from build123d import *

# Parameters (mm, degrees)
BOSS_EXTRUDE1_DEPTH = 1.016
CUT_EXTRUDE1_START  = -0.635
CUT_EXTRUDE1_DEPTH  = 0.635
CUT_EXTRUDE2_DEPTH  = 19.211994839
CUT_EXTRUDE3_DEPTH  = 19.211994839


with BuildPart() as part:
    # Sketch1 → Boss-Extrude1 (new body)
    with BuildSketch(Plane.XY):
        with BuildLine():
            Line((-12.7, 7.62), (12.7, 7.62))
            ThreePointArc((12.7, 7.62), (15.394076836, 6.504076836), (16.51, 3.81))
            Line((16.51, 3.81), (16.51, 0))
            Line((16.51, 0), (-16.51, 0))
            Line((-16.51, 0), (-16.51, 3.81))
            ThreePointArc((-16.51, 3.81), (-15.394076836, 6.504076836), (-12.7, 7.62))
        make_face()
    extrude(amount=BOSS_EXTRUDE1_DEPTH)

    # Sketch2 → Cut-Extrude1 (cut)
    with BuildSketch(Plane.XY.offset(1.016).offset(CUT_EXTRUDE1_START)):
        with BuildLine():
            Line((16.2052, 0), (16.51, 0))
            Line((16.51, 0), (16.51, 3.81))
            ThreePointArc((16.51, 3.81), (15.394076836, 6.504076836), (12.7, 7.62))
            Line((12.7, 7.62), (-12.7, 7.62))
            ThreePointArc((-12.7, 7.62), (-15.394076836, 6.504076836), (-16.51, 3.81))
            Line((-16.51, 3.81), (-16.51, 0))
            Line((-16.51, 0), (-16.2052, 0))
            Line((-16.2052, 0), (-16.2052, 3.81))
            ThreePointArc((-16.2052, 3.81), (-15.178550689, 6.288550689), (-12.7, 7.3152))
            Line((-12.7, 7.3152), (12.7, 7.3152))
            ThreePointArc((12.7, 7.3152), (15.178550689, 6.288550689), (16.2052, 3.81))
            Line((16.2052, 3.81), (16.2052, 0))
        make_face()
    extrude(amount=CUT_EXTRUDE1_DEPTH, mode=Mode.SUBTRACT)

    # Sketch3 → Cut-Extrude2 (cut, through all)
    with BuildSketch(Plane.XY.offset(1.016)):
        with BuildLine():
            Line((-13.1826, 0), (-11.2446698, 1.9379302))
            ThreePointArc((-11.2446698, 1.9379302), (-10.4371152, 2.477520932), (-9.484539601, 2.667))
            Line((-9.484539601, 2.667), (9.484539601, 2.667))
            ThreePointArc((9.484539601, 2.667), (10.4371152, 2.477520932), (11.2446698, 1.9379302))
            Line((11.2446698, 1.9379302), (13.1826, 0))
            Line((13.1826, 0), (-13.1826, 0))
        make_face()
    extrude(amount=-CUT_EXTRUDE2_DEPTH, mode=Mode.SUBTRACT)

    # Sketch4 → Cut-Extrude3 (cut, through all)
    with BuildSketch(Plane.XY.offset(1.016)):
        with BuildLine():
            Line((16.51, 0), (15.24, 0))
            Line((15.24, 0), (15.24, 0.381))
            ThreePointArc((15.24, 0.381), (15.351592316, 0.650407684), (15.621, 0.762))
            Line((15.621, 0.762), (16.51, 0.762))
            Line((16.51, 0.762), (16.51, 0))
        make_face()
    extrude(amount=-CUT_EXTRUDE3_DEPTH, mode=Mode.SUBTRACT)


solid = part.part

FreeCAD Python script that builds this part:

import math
import FreeCAD as App
import Part
import Sketcher
from FreeCAD import Vector
Q = App.Units.Quantity

doc = App.newDocument("Part")
params = doc.addObject("Spreadsheet::Sheet", "Params")
for row, (alias, value) in enumerate([
    ("sketch1_width", "1 in"),
    ("sketch1_radius", "0.15 in"),
    ("sketch1_height", "0.15 in"),
    ("pad1_length", "0.04 in"),
    ("sketch2_width", "1 in"),
    ("sketch2_radius", "0.15 in"),
    ("sketch2_radius2", "0.138 in"),
    ("sketch2_height", "0.15 in"),
    ("pocket1_length", "0.025 in"),
    ("sketch3_radius", "0.098 in"),
    ("sketch3_width", "1.038 in"),
    ("sketch4_radius", "0.015 in"),
    ("sketch4_width", "0.05 in"),
    ("sketch4_height", "0.03 in"),
], start=1):
    params.set(f"A{row}", alias)
    params.set(f"B{row}", "=" + value)
    params.setAlias(f"B{row}", alias)

body = doc.addObject("PartDesign::Body", "Body")

sketch1 = doc.addObject("Sketcher::SketchObject", "Sketch")
body.addObject(sketch1)
sketch1.AttachmentSupport = (doc.XY_Plane, [""])
sketch1.MapMode = "FlatFace"
sketch1.addGeometry(Part.LineSegment(Vector(12.7, 7.62, 0), Vector(-12.7, 7.62, 0)), False)
sketch1.addGeometry(Part.ArcOfCircle(Part.Circle(Vector(-12.7, 3.81, 0), Vector(0, 0, 1), 3.81), math.radians(90), math.radians(180)), False)
sketch1.addGeometry(Part.LineSegment(Vector(-16.51, 3.81, 0), Vector(-16.51, 0, 0)), False)
sketch1.addGeometry(Part.LineSegment(Vector(-16.51, 0, 0), Vector(16.51, 0, 0)), False)
sketch1.addGeometry(Part.LineSegment(Vector(16.51, 0, 0), Vector(16.51, 3.81, 0)), False)
sketch1.addGeometry(Part.ArcOfCircle(Part.Circle(Vector(12.7, 3.81, 0), Vector(0, 0, 1), 3.81), math.radians(0), math.radians(90)), False)
sketch1.addConstraint(Sketcher.Constraint("Tangent", 0, 2, 1, 1))
sketch1.addConstraint(Sketcher.Constraint("Tangent", 1, 2, 2, 1))
sketch1.addConstraint(Sketcher.Constraint("Coincident", 2, 2, 3, 1))
sketch1.addConstraint(Sketcher.Constraint("Coincident", 3, 2, 4, 1))
sketch1.addConstraint(Sketcher.Constraint("Tangent", 4, 2, 5, 1))
sketch1.addConstraint(Sketcher.Constraint("Tangent", 5, 2, 0, 1))
sketch1.addConstraint(Sketcher.Constraint("Horizontal", 0))
sketch1.addConstraint(Sketcher.Constraint("Vertical", 2))
sketch1.addConstraint(Sketcher.Constraint("Horizontal", 3))
sketch1.addConstraint(Sketcher.Constraint("Vertical", 4))
sketch1.addConstraint(Sketcher.Constraint("Equal", 1, 5))
sketch1.addConstraint(Sketcher.Constraint("Symmetric", 2, 2, 3, 2, -1, 1))
sketch1.addConstraint(Sketcher.Constraint("DistanceX", 0, 2, 0, 1, Q("1 in")))
sketch1.addConstraint(Sketcher.Constraint("Radius", 1, Q("0.15 in")))
sketch1.addConstraint(Sketcher.Constraint("DistanceY", 2, 2, 2, 1, Q("0.15 in")))
sketch1.setExpression("Constraints[12]", "Params.sketch1_width")
sketch1.setExpression("Constraints[13]", "Params.sketch1_radius")
sketch1.setExpression("Constraints[14]", "Params.sketch1_height")
pad1 = doc.addObject("PartDesign::Pad", "Pad")
body.addObject(pad1)
pad1.Profile = sketch1
pad1.setExpression("Length", "Params.pad1_length")

sketch2 = doc.addObject("Sketcher::SketchObject", "Sketch001")
body.addObject(sketch2)
sketch2.AttachmentSupport = (doc.XY_Plane, [""])
sketch2.MapMode = "FlatFace"
sketch2.AttachmentOffset = App.Placement(Vector(0, 0, 0.015 * 25.4), App.Rotation())
sketch2.addGeometry(Part.LineSegment(Vector(16.2052, 0, 0), Vector(16.51, 0, 0)), False)
sketch2.addGeometry(Part.LineSegment(Vector(16.51, 0, 0), Vector(16.51, 3.81, 0)), False)
sketch2.addGeometry(Part.ArcOfCircle(Part.Circle(Vector(12.7, 3.81, 0), Vector(0, 0, 1), 3.81), math.radians(0), math.radians(90)), False)
sketch2.addGeometry(Part.LineSegment(Vector(12.7, 7.62, 0), Vector(-12.7, 7.62, 0)), False)
sketch2.addGeometry(Part.ArcOfCircle(Part.Circle(Vector(-12.7, 3.81, 0), Vector(0, 0, 1), 3.81), math.radians(90), math.radians(180)), False)
sketch2.addGeometry(Part.LineSegment(Vector(-16.51, 3.81, 0), Vector(-16.51, 0, 0)), False)
sketch2.addGeometry(Part.LineSegment(Vector(-16.51, 0, 0), Vector(-16.2052, 0, 0)), False)
sketch2.addGeometry(Part.LineSegment(Vector(-16.2052, 0, 0), Vector(-16.2052, 3.81, 0)), False)
sketch2.addGeometry(Part.ArcOfCircle(Part.Circle(Vector(-12.7, 3.81, 0), Vector(0, 0, 1), 3.5052), math.radians(90), math.radians(180)), False)
sketch2.addGeometry(Part.LineSegment(Vector(-12.7, 7.3152, 0), Vector(12.7, 7.3152, 0)), False)
sketch2.addGeometry(Part.ArcOfCircle(Part.Circle(Vector(12.7, 3.81, 0), Vector(0, 0, 1), 3.5052), math.radians(0), math.radians(90)), False)
sketch2.addGeometry(Part.LineSegment(Vector(16.2052, 3.81, 0), Vector(16.2052, 0, 0)), False)
sketch2.addConstraint(Sketcher.Constraint("Coincident", 0, 2, 1, 1))
sketch2.addConstraint(Sketcher.Constraint("Tangent", 1, 2, 2, 1))
sketch2.addConstraint(Sketcher.Constraint("Tangent", 2, 2, 3, 1))
sketch2.addConstraint(Sketcher.Constraint("Tangent", 3, 2, 4, 1))
sketch2.addConstraint(Sketcher.Constraint("Tangent", 4, 2, 5, 1))
sketch2.addConstraint(Sketcher.Constraint("Coincident", 5, 2, 6, 1))
sketch2.addConstraint(Sketcher.Constraint("Coincident", 6, 2, 7, 1))
sketch2.addConstraint(Sketcher.Constraint("Tangent", 7, 2, 8, 2))
sketch2.addConstraint(Sketcher.Constraint("Tangent", 8, 1, 9, 1))
sketch2.addConstraint(Sketcher.Constraint("Tangent", 9, 2, 10, 2))
sketch2.addConstraint(Sketcher.Constraint("Tangent", 10, 1, 11, 1))
sketch2.addConstraint(Sketcher.Constraint("Coincident", 11, 2, 0, 1))
sketch2.addConstraint(Sketcher.Constraint("Horizontal", 0))
sketch2.addConstraint(Sketcher.Constraint("Vertical", 1))
sketch2.addConstraint(Sketcher.Constraint("Horizontal", 3))
sketch2.addConstraint(Sketcher.Constraint("Vertical", 5))
sketch2.addConstraint(Sketcher.Constraint("Horizontal", 6))
sketch2.addConstraint(Sketcher.Constraint("Vertical", 7))
sketch2.addConstraint(Sketcher.Constraint("Horizontal", 9))
sketch2.addConstraint(Sketcher.Constraint("Vertical", 11))
sketch2.addConstraint(Sketcher.Constraint("Coincident", 8, 3, 4, 3))
sketch2.addConstraint(Sketcher.Constraint("Coincident", 10, 3, 2, 3))
sketch2.addConstraint(Sketcher.Constraint("Equal", 2, 4))
sketch2.addConstraint(Sketcher.Constraint("Symmetric", 0, 2, 5, 2, -1, 1))
sketch2.addConstraint(Sketcher.Constraint("PointOnObject", 0, 2, -1))
sketch2.addConstraint(Sketcher.Constraint("DistanceX", 3, 2, 3, 1, Q("1 in")))
sketch2.addConstraint(Sketcher.Constraint("Radius", 2, Q("0.15 in")))
sketch2.addConstraint(Sketcher.Constraint("Radius", 8, Q("0.138 in")))
sketch2.addConstraint(Sketcher.Constraint("DistanceY", 1, 1, 1, 2, Q("0.15 in")))
sketch2.setExpression("Constraints[25]", "Params.sketch2_width")
sketch2.setExpression("Constraints[26]", "Params.sketch2_radius")
sketch2.setExpression("Constraints[27]", "Params.sketch2_radius2")
sketch2.setExpression("Constraints[28]", "Params.sketch2_height")
pocket1 = doc.addObject("PartDesign::Pocket", "Pocket")
body.addObject(pocket1)
pocket1.Profile = sketch2
pocket1.setExpression("Length", "Params.pocket1_length")
pocket1.Reversed = True

sketch3 = doc.addObject("Sketcher::SketchObject", "Sketch002")
body.addObject(sketch3)
sketch3.AttachmentSupport = (doc.XY_Plane, [""])
sketch3.MapMode = "FlatFace"
sketch3.AttachmentOffset = App.Placement(Vector(0, 0, 0.04 * 25.4), App.Rotation())
sketch3.addGeometry(Part.LineSegment(Vector(-11.24467, 1.93793, 0), Vector(-13.1826, 0, 0)), False)
sketch3.addGeometry(Part.LineSegment(Vector(-13.1826, 0, 0), Vector(13.1826, 0, 0)), False)
sketch3.addGeometry(Part.LineSegment(Vector(13.1826, 0, 0), Vector(11.24467, 1.93793, 0)), False)
sketch3.addGeometry(Part.ArcOfCircle(Part.Circle(Vector(9.48454, 0.1778, 0), Vector(0, 0, 1), 2.4892), math.radians(45), math.radians(90)), False)
sketch3.addGeometry(Part.LineSegment(Vector(9.48454, 2.667, 0), Vector(-9.48454, 2.667, 0)), False)
sketch3.addGeometry(Part.ArcOfCircle(Part.Circle(Vector(-9.48454, 0.1778, 0), Vector(0, 0, 1), 2.4892), math.radians(90), math.radians(135)), False)
sketch3.addConstraint(Sketcher.Constraint("Coincident", 0, 2, 1, 1))
sketch3.addConstraint(Sketcher.Constraint("Coincident", 1, 2, 2, 1))
sketch3.addConstraint(Sketcher.Constraint("Tangent", 2, 2, 3, 1))
sketch3.addConstraint(Sketcher.Constraint("Tangent", 3, 2, 4, 1))
sketch3.addConstraint(Sketcher.Constraint("Tangent", 4, 2, 5, 1))
sketch3.addConstraint(Sketcher.Constraint("Tangent", 5, 2, 0, 1))
sketch3.addConstraint(Sketcher.Constraint("Horizontal", 1))
sketch3.addConstraint(Sketcher.Constraint("Horizontal", 4))
sketch3.addConstraint(Sketcher.Constraint("Equal", 3, 5))
sketch3.addConstraint(Sketcher.Constraint("Symmetric", 0, 2, 1, 2, -1, 1))
sketch3.addConstraint(Sketcher.Constraint("Perpendicular", 0, 2))
sketch3.addConstraint(Sketcher.Constraint("Horizontal", 2, 2, 5, 2))
sketch3.addConstraint(Sketcher.Constraint("Radius", 3, Q("0.098 in")))
sketch3.addConstraint(Sketcher.Constraint("DistanceX", 1, 1, 1, 2, Q("1.038 in")))
sketch3.addConstraint(Sketcher.Constraint("DistanceY", -1, 1, 3, 3, Q("0.007 in")))
sketch3.setExpression("Constraints[12]", "Params.sketch3_radius")
sketch3.setExpression("Constraints[13]", "Params.sketch3_width")
pocket2 = doc.addObject("PartDesign::Pocket", "Pocket001")
body.addObject(pocket2)
pocket2.Profile = sketch3
pocket2.Type = "ThroughAll"

sketch4 = doc.addObject("Sketcher::SketchObject", "Sketch003")
body.addObject(sketch4)
sketch4.AttachmentSupport = (doc.XY_Plane, [""])
sketch4.MapMode = "FlatFace"
sketch4.AttachmentOffset = App.Placement(Vector(0, 0, 0.04 * 25.4), App.Rotation())
sketch4.addGeometry(Part.LineSegment(Vector(15.24, 0, 0), Vector(16.51, 0, 0)), False)
sketch4.addGeometry(Part.LineSegment(Vector(16.51, 0, 0), Vector(16.51, 0.762, 0)), False)
sketch4.addGeometry(Part.LineSegment(Vector(16.51, 0.762, 0), Vector(15.621, 0.762, 0)), False)
sketch4.addGeometry(Part.ArcOfCircle(Part.Circle(Vector(15.621, 0.381, 0), Vector(0, 0, 1), 0.381), math.radians(90), math.radians(180)), False)
sketch4.addGeometry(Part.LineSegment(Vector(15.24, 0.381, 0), Vector(15.24, 0, 0)), False)
sketch4.addConstraint(Sketcher.Constraint("Coincident", 0, 2, 1, 1))
sketch4.addConstraint(Sketcher.Constraint("Coincident", 1, 2, 2, 1))
sketch4.addConstraint(Sketcher.Constraint("Tangent", 2, 2, 3, 1))
sketch4.addConstraint(Sketcher.Constraint("Tangent", 3, 2, 4, 1))
sketch4.addConstraint(Sketcher.Constraint("Coincident", 4, 2, 0, 1))
sketch4.addConstraint(Sketcher.Constraint("Horizontal", 0))
sketch4.addConstraint(Sketcher.Constraint("Vertical", 1))
sketch4.addConstraint(Sketcher.Constraint("Horizontal", 2))
sketch4.addConstraint(Sketcher.Constraint("Vertical", 4))
sketch4.addConstraint(Sketcher.Constraint("PointOnObject", 0, 2, -1))
sketch4.addConstraint(Sketcher.Constraint("Radius", 3, Q("0.015 in")))
sketch4.addConstraint(Sketcher.Constraint("DistanceX", 0, 1, 0, 2, Q("0.05 in")))
sketch4.addConstraint(Sketcher.Constraint("DistanceY", 1, 1, 1, 2, Q("0.03 in")))
sketch4.addConstraint(Sketcher.Constraint("DistanceX", -1, 1, 3, 2, Q("0.6 in")))
sketch4.setExpression("Constraints[10]", "Params.sketch4_radius")
sketch4.setExpression("Constraints[11]", "Params.sketch4_width")
sketch4.setExpression("Constraints[12]", "Params.sketch4_height")
pocket3 = doc.addObject("PartDesign::Pocket", "Pocket002")
body.addObject(pocket3)
pocket3.Profile = sketch4
pocket3.Type = "ThroughAll"

doc.recompute()
